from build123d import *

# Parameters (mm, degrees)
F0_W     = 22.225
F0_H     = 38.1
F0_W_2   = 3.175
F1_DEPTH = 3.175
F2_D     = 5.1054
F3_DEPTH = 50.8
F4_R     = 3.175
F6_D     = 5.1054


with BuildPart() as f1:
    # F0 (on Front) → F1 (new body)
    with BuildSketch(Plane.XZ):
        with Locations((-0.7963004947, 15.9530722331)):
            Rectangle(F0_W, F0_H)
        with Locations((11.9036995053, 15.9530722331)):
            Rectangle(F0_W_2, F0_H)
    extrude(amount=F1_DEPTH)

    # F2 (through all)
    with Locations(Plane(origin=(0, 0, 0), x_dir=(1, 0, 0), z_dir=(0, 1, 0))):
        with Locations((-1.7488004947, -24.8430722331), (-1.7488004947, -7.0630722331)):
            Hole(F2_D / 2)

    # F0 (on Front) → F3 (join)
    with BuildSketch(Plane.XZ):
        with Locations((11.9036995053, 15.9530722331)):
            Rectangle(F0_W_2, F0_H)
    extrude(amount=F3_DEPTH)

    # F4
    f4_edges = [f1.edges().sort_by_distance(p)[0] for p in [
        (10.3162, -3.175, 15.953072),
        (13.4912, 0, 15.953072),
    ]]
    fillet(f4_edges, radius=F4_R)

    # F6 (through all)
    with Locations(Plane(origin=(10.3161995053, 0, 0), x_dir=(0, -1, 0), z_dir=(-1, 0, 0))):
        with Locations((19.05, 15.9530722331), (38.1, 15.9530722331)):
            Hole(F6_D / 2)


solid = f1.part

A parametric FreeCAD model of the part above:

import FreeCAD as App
import Part
import Sketcher
from FreeCAD import Vector
Q = App.Units.Quantity


def edges_at(feature, points):
    """Names of the edges that pass closest to the given points."""
    edges = feature.Shape.Edges
    near = lambda p: min(range(len(edges)), key=lambda i: edges[i].distToShape(Part.Vertex(*p))[0])
    return sorted({f"Edge{near(p) + 1}" for p in points})


def add_polygon(sketch, points):
    """Adds a closed chain of lines whose ends are joined by coincident constraints."""
    first, n = sketch.GeometryCount, len(points)
    for a, b in zip(points, points[1:] + points[:1]):
        sketch.addGeometry(Part.LineSegment(App.Vector(*a, 0), App.Vector(*b, 0)), False)
    for i in range(n):
        sketch.addConstraint(Sketcher.Constraint("Coincident", first + i, 2, first + (i + 1) % n, 1))

doc = App.newDocument("Part")
body = doc.addObject("PartDesign::Body", "Body")

# Sketch on XZ plane
sketch1 = body.newObject("Sketcher::SketchObject", "Sketch")
sketch1.AttachmentSupport = (doc.getObject("XZ_Plane"), [""])
sketch1.MapMode = "FlatFace"
add_polygon(sketch1, [(-11.9088, 35.003072), (-11.9088, -3.096928), (13.4912, -3.096928), (13.4912, 35.003072)])  # lines 0-3
sketch1.addConstraint([
    Sketcher.Constraint("Vertical", 0),
    Sketcher.Constraint("Horizontal", 1),
    Sketcher.Constraint("Vertical", 2),
    Sketcher.Constraint("Horizontal", 3),
    Sketcher.Constraint("DistanceX", 1, 1, 1, 2, Q("1 in")),
    Sketcher.Constraint("DistanceY", 0, 2, 0, 1, Q("1.5 in")),
    Sketcher.Constraint("DistanceX", 0, 2, -1, 1, 11.9088),
    Sketcher.Constraint("DistanceY", 0, 2, -1, 1, 3.096928),
])
pad1 = body.newObject("PartDesign::Pad", "Pad")
pad1.Profile = sketch1
pad1.Length = Q("0.125 in")

# Sketch on XZ plane
sketch2 = body.newObject("Sketcher::SketchObject", "Sketch001")
sketch2.AttachmentSupport = (doc.getObject("XZ_Plane"), [""])
sketch2.MapMode = "FlatFace"
sketch2.addGeometry([
    Part.Circle(Vector(-1.7488, 24.843072, 0), Vector(0, 0, 1), 2.5527),
    Part.Circle(Vector(-1.7488, 7.063072, 0), Vector(0, 0, 1), 2.5527),
], False)
sketch2.addConstraint([
    Sketcher.Constraint("Equal", 0, 1),
    Sketcher.Constraint("Vertical", 0, 3, 1, 3),
    Sketcher.Constraint("Diameter", 0, Q("0.201 in")),
    Sketcher.Constraint("DistanceY", 1, 3, 0, 3, Q("0.7 in")),
    Sketcher.Constraint("DistanceX", 0, 3, -1, 1, 1.7488),
    Sketcher.Constraint("DistanceY", -1, 1, 0, 3, 24.843072),
])
doc.recompute()
hole = body.newObject("PartDesign::Hole", "Hole")
hole.Profile = sketch2
hole.ThreadType = "None"
hole.Diameter = Q("0.201 in")
hole.DepthType = "ThroughAll"
hole.Reversed = True

# Sketch on XZ plane
sketch3 = body.newObject("Sketcher::SketchObject", "Sketch002")
sketch3.AttachmentSupport = (doc.getObject("XZ_Plane"), [""])
sketch3.MapMode = "FlatFace"
add_polygon(sketch3, [(10.3162, 35.003072), (10.3162, -3.096928), (13.4912, -3.096928), (13.4912, 35.003072)])  # lines 0-3
sketch3.addConstraint([
    Sketcher.Constraint("Vertical", 0),
    Sketcher.Constraint("Horizontal", 1),
    Sketcher.Constraint("Vertical", 2),
    Sketcher.Constraint("Horizontal", 3),
    Sketcher.Constraint("DistanceY", 0, 2, 0, 1, Q("1.5 in")),
    Sketcher.Constraint("DistanceX", 1, 1, 1, 2, Q("0.125 in")),
    Sketcher.Constraint("DistanceX", -1, 1, 0, 2, 10.3162),
    Sketcher.Constraint("DistanceY", 0, 2, -1, 1, 3.096928),
])
pad2 = body.newObject("PartDesign::Pad", "Pad001")
pad2.Profile = sketch3
pad2.Length = Q("2 in")
doc.recompute()

fillet = body.newObject("PartDesign::Fillet", "Fillet")
fillet.Base = (pad2, edges_at(pad2, [(10.316, -3.175, 15.953), (13.491, 0, 15.953)]))
fillet.Radius = Q("0.125 in")

# Sketch on YZ plane
sketch4 = body.newObject("Sketcher::SketchObject", "Sketch003")
sketch4.AttachmentSupport = (doc.getObject("YZ_Plane"), [""])
sketch4.MapMode = "FlatFace"
sketch4.AttachmentOffset = App.Placement(Vector(0, 0, 10.3162), App.Rotation())
sketch4.addGeometry([
    Part.Circle(Vector(-19.05, 15.953072, 0), Vector(0, 0, 1), 2.5527),
    Part.Circle(Vector(-38.1, 15.953072, 0), Vector(0, 0, 1), 2.5527),
], False)
sketch4.addConstraint([
    Sketcher.Constraint("Equal", 0, 1),
    Sketcher.Constraint("Horizontal", 0, 3, 1, 3),
    Sketcher.Constraint("Diameter", 0, Q("0.201 in")),
    Sketcher.Constraint("DistanceX", 1, 3, -1, 1, Q("1.5 in")),
    Sketcher.Constraint("DistanceX", 0, 3, -1, 1, Q("0.75 in")),
    Sketcher.Constraint("DistanceY", -1, 1, 0, 3, 15.953072),
])
doc.recompute()
hole2 = body.newObject("PartDesign::Hole", "Hole001")
hole2.Profile = sketch4
hole2.ThreadType = "None"
hole2.Diameter = Q("0.201 in")
hole2.DepthType = "ThroughAll"
hole2.Reversed = True

doc.recompute()
